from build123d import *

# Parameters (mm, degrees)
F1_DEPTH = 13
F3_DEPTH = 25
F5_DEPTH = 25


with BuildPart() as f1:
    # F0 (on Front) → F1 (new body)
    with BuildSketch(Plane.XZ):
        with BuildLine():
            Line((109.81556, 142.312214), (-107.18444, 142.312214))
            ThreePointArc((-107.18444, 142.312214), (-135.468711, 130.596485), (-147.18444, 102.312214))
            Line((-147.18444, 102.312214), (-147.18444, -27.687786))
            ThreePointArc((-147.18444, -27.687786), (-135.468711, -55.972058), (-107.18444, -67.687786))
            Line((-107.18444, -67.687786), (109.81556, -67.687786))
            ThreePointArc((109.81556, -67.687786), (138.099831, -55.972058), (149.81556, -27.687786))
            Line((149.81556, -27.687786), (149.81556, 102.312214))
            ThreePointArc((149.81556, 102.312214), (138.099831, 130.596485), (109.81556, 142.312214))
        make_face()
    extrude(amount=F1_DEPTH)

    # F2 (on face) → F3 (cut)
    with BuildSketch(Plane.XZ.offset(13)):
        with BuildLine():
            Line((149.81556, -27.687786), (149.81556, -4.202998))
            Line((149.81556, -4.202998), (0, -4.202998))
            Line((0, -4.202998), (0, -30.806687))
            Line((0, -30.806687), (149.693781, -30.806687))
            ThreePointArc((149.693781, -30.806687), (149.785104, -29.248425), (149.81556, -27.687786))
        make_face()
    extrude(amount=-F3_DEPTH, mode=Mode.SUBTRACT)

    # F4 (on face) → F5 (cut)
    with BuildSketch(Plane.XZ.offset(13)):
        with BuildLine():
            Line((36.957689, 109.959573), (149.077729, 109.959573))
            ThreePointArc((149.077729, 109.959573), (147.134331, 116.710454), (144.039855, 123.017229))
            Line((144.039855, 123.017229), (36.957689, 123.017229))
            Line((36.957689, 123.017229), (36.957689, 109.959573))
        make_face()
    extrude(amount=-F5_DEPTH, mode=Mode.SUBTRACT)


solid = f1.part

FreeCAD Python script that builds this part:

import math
import FreeCAD as App
import Part
import Sketcher
from FreeCAD import Vector

doc = App.newDocument("Part")
body = doc.addObject("PartDesign::Body", "Body")

# Sketch on XZ plane
sketch1 = body.newObject("Sketcher::SketchObject", "Sketch")
sketch1.AttachmentSupport = (doc.getObject("XZ_Plane"), [""])
sketch1.MapMode = "FlatFace"
sketch1.addGeometry([
    Part.LineSegment(Vector(110, 142, 0), Vector(-107, 142, 0)),  # 0
    Part.ArcOfCircle(Part.Circle(Vector(-107, 102, 0), Vector(0, 0, 1), 40), math.radians(90), math.radians(180)),  # 1
    Part.LineSegment(Vector(-147, 102, 0), Vector(-147, -28, 0)),  # 2
    Part.ArcOfCircle(Part.Circle(Vector(-107, -28, 0), Vector(0, 0, 1), 40), math.radians(180), math.radians(270)),  # 3
    Part.LineSegment(Vector(-107, -68, 0), Vector(110, -68, 0)),  # 4
    Part.ArcOfCircle(Part.Circle(Vector(110, -28, 0), Vector(0, 0, 1), 40), math.radians(-90), math.radians(0)),  # 5
    Part.LineSegment(Vector(150, -28, 0), Vector(150, 102, 0)),  # 6
    Part.ArcOfCircle(Part.Circle(Vector(110, 102, 0), Vector(0, 0, 1), 40), math.radians(0), math.radians(90)),  # 7
], False)
sketch1.addConstraint([
    Sketcher.Constraint("Tangent", 0, 2, 1, 1),
    Sketcher.Constraint("Tangent", 1, 2, 2, 1),
    Sketcher.Constraint("Tangent", 2, 2, 3, 1),
    Sketcher.Constraint("Tangent", 3, 2, 4, 1),
    Sketcher.Constraint("Tangent", 4, 2, 5, 1),
    Sketcher.Constraint("Tangent", 5, 2, 6, 1),
    Sketcher.Constraint("Tangent", 6, 2, 7, 1),
    Sketcher.Constraint("Tangent", 7, 2, 0, 1),
    Sketcher.Constraint("Horizontal", 0),
    Sketcher.Constraint("Vertical", 2),
    Sketcher.Constraint("Horizontal", 4),
    Sketcher.Constraint("Vertical", 6),
    Sketcher.Constraint("Equal", 1, 3),
    Sketcher.Constraint("Equal", 3, 5),
    Sketcher.Constraint("Equal", 5, 7),
    Sketcher.Constraint("Radius", 1, 40.000001),
    Sketcher.Constraint("DistanceX", 0, 2, 0, 1, 217.0),
    Sketcher.Constraint("DistanceY", 2, 2, 2, 1, 130.0),
    Sketcher.Constraint("DistanceX", 1, 3, -1, 1, 107.184439),
    Sketcher.Constraint("DistanceY", -1, 1, 1, 3, 102.312213),
])
pad1 = body.newObject("PartDesign::Pad", "Pad")
pad1.Profile = sketch1
pad1.Length = 13

# Sketch on XZ plane
sketch2 = body.newObject("Sketcher::SketchObject", "Sketch001")
sketch2.AttachmentSupport = (doc.getObject("XZ_Plane"), [""])
sketch2.MapMode = "FlatFace"
sketch2.AttachmentOffset = App.Placement(Vector(0, 0, 13), App.Rotation())
sketch2.addGeometry([
    Part.LineSegment(Vector(149.8, -27.7, 0), Vector(149.8, -4.2, 0)),  # 0
    Part.LineSegment(Vector(149.8, -4.2, 0), Vector(0, -4.2, 0)),  # 1
    Part.LineSegment(Vector(0, -4.2, 0), Vector(0, -30.8, 0)),  # 2
    Part.LineSegment(Vector(0, -30.8, 0), Vector(149.7, -30.8, 0)),  # 3
    Part.ArcOfCircle(Part.Circle(Vector(109.8, -27.7, 0), Vector(0, 0, 1), 40), math.radians(-4.47), math.radians(0)),  # 4
], False)
sketch2.addConstraint([
    Sketcher.Constraint("Coincident", 0, 2, 1, 1),
    Sketcher.Constraint("Coincident", 1, 2, 2, 1),
    Sketcher.Constraint("Coincident", 2, 2, 3, 1),
    Sketcher.Constraint("Coincident", 3, 2, 4, 1),
    Sketcher.Constraint("Tangent", 4, 2, 0, 1),
    Sketcher.Constraint("Vertical", 0),
    Sketcher.Constraint("Horizontal", 1),
    Sketcher.Constraint("Vertical", 2),
    Sketcher.Constraint("Horizontal", 3),
    Sketcher.Constraint("PointOnObject", 1, 2, -2),
    Sketcher.Constraint("Radius", 4, 39.999756),
    Sketcher.Constraint("DistanceX", 1, 2, 1, 1, 149.81556),
    Sketcher.Constraint("DistanceX", 3, 1, 3, 2, 149.693781),
    Sketcher.Constraint("DistanceY", 2, 2, 2, 1, 26.603689),
    Sketcher.Constraint("DistanceY", 4, 3, -1, 1, 27.687804),
])
pocket1 = body.newObject("PartDesign::Pocket", "Pocket")
pocket1.Profile = sketch2
pocket1.Length = 25

# Sketch on XZ plane
sketch3 = body.newObject("Sketcher::SketchObject", "Sketch002")
sketch3.AttachmentSupport = (doc.getObject("XZ_Plane"), [""])
sketch3.MapMode = "FlatFace"
sketch3.AttachmentOffset = App.Placement(Vector(0, 0, 13), App.Rotation())
sketch3.addGeometry([
    Part.LineSegment(Vector(37, 110, 0), Vector(149, 110, 0)),
    Part.ArcOfCircle(Part.Circle(Vector(110, 102, 0), Vector(0, 0, 1), 40), math.radians(11), math.radians(31)),
    Part.LineSegment(Vector(144, 123, 0), Vector(37, 123, 0)),
    Part.LineSegment(Vector(37, 123, 0), Vector(37, 110, 0)),
], False)
sketch3.addConstraint([
    Sketcher.Constraint("Coincident", 0, 2, 1, 1),
    Sketcher.Constraint("Coincident", 1, 2, 2, 1),
    Sketcher.Constraint("Coincident", 2, 2, 3, 1),
    Sketcher.Constraint("Coincident", 3, 2, 0, 1),
    Sketcher.Constraint("Horizontal", 0),
    Sketcher.Constraint("Horizontal", 2),
    Sketcher.Constraint("Vertical", 3),
    Sketcher.Constraint("Radius", 1, 40.000024),
    Sketcher.Constraint("DistanceX", 0, 1, 0, 2, 112.12004),
    Sketcher.Constraint("DistanceX", 2, 2, 2, 1, 107.082166),
    Sketcher.Constraint("DistanceY", 3, 2, 3, 1, 13.057656),
    Sketcher.Constraint("DistanceX", -1, 1, 0, 2, 149.077729),
    Sketcher.Constraint("DistanceY", -1, 1, 1, 2, 123.017229),
])
pocket2 = body.newObject("PartDesign::Pocket", "Pocket001")
pocket2.Profile = sketch3
pocket2.Length = 25

doc.recompute()
